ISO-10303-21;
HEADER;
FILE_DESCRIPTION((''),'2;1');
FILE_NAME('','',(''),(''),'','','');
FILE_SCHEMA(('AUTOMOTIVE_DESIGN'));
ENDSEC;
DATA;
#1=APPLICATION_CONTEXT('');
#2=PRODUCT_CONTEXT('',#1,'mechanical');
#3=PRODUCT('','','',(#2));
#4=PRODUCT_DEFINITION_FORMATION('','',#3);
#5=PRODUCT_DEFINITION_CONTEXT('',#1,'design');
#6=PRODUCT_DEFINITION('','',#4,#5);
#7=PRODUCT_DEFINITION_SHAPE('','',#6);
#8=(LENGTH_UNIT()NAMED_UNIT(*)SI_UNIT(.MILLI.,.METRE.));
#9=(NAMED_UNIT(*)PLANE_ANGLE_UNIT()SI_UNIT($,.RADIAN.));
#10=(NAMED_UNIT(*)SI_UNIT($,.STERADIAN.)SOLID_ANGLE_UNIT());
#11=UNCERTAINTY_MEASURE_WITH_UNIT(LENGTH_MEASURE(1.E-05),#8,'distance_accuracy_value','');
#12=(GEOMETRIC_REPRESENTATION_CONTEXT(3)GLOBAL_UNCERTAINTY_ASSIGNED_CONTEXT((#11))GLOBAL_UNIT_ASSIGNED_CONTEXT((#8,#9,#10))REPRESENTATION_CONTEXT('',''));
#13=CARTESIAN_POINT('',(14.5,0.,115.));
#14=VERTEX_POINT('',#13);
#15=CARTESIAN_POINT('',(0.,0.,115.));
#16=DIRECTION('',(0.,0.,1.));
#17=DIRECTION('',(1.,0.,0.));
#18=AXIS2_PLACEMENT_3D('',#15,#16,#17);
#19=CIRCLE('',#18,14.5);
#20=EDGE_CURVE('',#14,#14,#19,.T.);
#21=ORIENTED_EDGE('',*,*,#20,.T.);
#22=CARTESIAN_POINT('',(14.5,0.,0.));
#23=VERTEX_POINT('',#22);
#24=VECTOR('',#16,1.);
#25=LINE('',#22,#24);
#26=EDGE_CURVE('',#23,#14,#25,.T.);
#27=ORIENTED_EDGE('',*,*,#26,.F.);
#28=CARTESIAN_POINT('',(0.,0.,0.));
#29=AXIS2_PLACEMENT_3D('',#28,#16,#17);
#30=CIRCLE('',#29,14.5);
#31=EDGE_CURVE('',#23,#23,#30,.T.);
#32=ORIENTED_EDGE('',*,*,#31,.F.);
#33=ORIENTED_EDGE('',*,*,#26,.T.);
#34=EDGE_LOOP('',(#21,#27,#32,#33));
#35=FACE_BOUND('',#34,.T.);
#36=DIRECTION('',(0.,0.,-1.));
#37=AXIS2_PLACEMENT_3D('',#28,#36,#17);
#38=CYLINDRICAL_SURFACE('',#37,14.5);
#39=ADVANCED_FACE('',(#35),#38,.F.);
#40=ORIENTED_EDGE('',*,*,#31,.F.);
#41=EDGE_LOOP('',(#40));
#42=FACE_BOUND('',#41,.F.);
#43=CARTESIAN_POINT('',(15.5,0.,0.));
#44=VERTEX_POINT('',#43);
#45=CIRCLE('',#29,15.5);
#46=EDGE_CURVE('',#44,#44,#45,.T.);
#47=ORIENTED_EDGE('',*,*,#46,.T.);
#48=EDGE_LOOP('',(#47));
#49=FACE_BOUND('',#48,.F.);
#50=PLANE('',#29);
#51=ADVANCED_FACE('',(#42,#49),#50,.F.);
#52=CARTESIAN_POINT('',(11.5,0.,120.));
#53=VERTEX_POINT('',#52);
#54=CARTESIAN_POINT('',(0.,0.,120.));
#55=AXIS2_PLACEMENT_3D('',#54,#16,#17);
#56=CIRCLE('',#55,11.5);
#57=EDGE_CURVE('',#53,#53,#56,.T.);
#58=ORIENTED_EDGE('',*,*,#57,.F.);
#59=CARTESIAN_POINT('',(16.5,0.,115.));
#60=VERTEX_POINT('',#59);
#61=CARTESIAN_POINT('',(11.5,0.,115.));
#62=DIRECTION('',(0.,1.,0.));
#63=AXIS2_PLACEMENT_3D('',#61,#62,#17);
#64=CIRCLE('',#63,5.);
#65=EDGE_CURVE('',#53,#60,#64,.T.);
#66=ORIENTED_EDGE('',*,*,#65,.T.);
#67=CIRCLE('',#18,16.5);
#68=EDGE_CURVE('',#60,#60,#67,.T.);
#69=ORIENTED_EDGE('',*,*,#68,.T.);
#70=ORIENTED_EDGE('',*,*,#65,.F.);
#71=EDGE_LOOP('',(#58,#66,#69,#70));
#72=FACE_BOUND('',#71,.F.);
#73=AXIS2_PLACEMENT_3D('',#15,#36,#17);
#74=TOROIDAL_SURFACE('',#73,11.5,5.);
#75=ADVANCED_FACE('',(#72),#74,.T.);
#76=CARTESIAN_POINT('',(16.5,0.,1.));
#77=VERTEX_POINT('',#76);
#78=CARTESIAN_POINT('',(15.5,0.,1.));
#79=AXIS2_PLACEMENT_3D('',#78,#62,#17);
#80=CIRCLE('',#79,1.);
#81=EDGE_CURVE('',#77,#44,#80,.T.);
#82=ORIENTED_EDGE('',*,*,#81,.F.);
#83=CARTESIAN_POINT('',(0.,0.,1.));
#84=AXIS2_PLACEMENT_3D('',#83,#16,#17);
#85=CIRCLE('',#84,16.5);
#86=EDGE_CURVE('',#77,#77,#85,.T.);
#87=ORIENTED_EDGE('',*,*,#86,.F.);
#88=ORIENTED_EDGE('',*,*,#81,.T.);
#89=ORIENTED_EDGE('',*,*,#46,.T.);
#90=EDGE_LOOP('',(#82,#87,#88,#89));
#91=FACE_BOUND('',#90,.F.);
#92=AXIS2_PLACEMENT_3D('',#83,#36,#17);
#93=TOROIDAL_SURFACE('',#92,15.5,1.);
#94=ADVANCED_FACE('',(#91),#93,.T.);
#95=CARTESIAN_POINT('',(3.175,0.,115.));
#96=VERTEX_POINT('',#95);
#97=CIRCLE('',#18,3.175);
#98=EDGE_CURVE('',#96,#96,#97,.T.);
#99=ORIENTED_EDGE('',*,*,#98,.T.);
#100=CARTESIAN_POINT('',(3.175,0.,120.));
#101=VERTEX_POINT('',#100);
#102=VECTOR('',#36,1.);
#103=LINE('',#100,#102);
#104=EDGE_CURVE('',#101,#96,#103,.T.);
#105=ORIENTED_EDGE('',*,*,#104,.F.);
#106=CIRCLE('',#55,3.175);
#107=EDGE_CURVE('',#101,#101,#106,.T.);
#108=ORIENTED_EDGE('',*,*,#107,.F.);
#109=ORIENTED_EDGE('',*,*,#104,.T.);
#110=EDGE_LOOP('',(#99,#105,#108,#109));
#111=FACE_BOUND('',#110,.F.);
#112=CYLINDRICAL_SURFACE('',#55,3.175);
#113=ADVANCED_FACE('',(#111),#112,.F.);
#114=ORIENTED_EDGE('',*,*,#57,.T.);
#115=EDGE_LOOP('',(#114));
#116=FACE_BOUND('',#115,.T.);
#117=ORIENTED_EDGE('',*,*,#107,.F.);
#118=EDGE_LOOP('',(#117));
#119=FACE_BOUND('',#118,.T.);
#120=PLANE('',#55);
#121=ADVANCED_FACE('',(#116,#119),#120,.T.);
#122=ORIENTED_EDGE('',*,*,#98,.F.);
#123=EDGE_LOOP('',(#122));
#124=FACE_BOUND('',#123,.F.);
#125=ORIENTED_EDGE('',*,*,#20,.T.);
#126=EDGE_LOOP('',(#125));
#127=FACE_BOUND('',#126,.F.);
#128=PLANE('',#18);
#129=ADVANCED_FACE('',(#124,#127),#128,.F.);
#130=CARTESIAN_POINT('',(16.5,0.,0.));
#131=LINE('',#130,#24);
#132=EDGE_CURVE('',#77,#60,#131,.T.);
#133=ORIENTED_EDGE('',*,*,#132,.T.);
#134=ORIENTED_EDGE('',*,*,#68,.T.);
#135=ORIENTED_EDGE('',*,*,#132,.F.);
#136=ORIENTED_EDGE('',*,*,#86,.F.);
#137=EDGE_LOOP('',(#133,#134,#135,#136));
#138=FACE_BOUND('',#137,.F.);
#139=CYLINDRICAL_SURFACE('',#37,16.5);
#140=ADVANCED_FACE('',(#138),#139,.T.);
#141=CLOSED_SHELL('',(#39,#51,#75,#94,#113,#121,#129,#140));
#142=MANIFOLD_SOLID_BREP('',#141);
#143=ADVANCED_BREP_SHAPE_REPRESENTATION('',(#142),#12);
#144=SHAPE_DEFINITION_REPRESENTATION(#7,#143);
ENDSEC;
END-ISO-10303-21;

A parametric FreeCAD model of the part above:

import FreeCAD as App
import Part
import Sketcher
Q = App.Units.Quantity


def edges_at(feature, points):
    """Names of the edges that pass closest to the given points."""
    edges = feature.Shape.Edges
    near = lambda p: min(range(len(edges)), key=lambda i: edges[i].distToShape(Part.Vertex(*p))[0])
    return sorted({f"Edge{near(p) + 1}" for p in points})

doc = App.newDocument("Part")
params = doc.addObject("Spreadsheet::Sheet", "Params")
for row, (alias, value) in enumerate([
    ("sketch1_diameter", "33 mm"),
    ("sketch1_diameter2", "29 mm"),
    ("pad1_length", "120 mm"),
    ("sketch2_diameter", "29 mm"),
    ("pad2_length", "5 mm"),
    ("fillet_radius", "5 mm"),
    ("fillet2_radius", "1 mm"),
    ("sketch3_diameter", "6.35 mm"),
    ("pocket1_length", "25 mm"),
], start=1):
    params.set(f"A{row}", alias)
    params.set(f"B{row}", "=" + value)
    params.setAlias(f"B{row}", alias)

body = doc.addObject("PartDesign::Body", "Body")

sketch1 = body.newObject("Sketcher::SketchObject", "Sketch")
sketch1.AttachmentSupport = (doc.getObject("XY_Plane"), [""])
sketch1.MapMode = "FlatFace"
sketch1.addGeometry([
    Part.Circle(App.Vector(0, 0, 0), App.Vector(0, 0, 1), 16),
    Part.Circle(App.Vector(0, 0, 0), App.Vector(0, 0, 1), 14),
], False)
sketch1.addConstraint([
    Sketcher.Constraint("Coincident", 0, 3, -1, 1),
    Sketcher.Constraint("Coincident", 1, 3, -1, 1),
    Sketcher.Constraint("Diameter", 0, Q("33 mm")),
    Sketcher.Constraint("Diameter", 1, Q("29 mm")),
])
sketch1.setExpression("Constraints[2]", "Params.sketch1_diameter")
sketch1.setExpression("Constraints[3]", "Params.sketch1_diameter2")
pad1 = body.newObject("PartDesign::Pad", "Pad")
pad1.Profile = sketch1
pad1.setExpression("Length", "Params.pad1_length")

sketch2 = body.newObject("Sketcher::SketchObject", "Sketch001")
sketch2.AttachmentSupport = (doc.getObject("XY_Plane"), [""])
sketch2.MapMode = "FlatFace"
sketch2.AttachmentOffset = App.Placement(App.Vector(0, 0, 120), App.Rotation())
sketch2.addGeometry(Part.Circle(App.Vector(0, 0, 0), App.Vector(0, 0, 1), 14), False)
sketch2.addConstraint([
    Sketcher.Constraint("Coincident", 0, 3, -1, 1),
    Sketcher.Constraint("Diameter", 0, Q("29 mm")),
])
sketch2.setExpression("Constraints[1]", "Params.sketch2_diameter")
pad2 = body.newObject("PartDesign::Pad", "Pad001")
pad2.Profile = sketch2
pad2.setExpression("Length", "Params.pad2_length")
pad2.Reversed = True
doc.recompute()

fillet = body.newObject("PartDesign::Fillet", "Fillet")
fillet.Base = (pad2, edges_at(pad2, [(-16.5, 0, 120)]))
fillet.setExpression("Radius", "Params.fillet_radius")
doc.recompute()

fillet2 = body.newObject("PartDesign::Fillet", "Fillet001")
fillet2.Base = (fillet, edges_at(fillet, [(-16.5, 0, 0)]))
fillet2.setExpression("Radius", "Params.fillet2_radius")

sketch3 = body.newObject("Sketcher::SketchObject", "Sketch002")
sketch3.AttachmentSupport = (doc.getObject("XY_Plane"), [""])
sketch3.MapMode = "FlatFace"
sketch3.AttachmentOffset = App.Placement(App.Vector(0, 0, 120), App.Rotation())
sketch3.addGeometry(Part.Circle(App.Vector(0, 0, 0), App.Vector(0, 0, 1), 3.2), False)
sketch3.addConstraint([
    Sketcher.Constraint("Coincident", 0, 3, -1, 1),
    Sketcher.Constraint("Diameter", 0, Q("6.35 mm")),
])
sketch3.setExpression("Constraints[1]", "Params.sketch3_diameter")
pocket1 = body.newObject("PartDesign::Pocket", "Pocket")
pocket1.Profile = sketch3
pocket1.setExpression("Length", "Params.pocket1_length")

doc.recompute()
